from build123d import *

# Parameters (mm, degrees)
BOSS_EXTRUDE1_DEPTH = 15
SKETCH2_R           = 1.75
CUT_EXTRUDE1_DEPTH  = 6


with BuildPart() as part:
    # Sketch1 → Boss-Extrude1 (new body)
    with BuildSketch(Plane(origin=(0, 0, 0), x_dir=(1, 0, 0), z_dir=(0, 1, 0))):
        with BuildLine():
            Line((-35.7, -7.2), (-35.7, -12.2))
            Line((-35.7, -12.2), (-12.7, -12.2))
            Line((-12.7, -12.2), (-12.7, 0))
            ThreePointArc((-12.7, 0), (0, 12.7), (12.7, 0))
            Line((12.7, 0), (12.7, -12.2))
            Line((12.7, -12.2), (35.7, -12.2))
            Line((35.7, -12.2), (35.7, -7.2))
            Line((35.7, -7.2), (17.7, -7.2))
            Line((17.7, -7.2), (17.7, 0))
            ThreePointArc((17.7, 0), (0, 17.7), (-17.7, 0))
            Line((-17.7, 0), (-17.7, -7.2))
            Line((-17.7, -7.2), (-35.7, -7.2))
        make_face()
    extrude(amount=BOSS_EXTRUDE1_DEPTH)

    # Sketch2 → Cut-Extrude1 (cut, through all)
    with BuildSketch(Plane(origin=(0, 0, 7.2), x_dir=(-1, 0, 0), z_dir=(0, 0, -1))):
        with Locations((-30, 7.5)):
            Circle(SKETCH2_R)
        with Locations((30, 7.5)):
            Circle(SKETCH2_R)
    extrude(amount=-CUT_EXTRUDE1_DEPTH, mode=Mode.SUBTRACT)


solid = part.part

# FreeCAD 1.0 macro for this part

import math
import FreeCAD as App
import Part
import Sketcher
from FreeCAD import Vector
Q = App.Units.Quantity

doc = App.newDocument("Part")
body = doc.addObject("PartDesign::Body", "Body")

# Sketch on XZ plane
sketch1 = doc.addObject("Sketcher::SketchObject", "Sketch")
body.addObject(sketch1)
sketch1.AttachmentSupport = (doc.XZ_Plane, [""])
sketch1.MapMode = "FlatFace"
sketch1.addGeometry(Part.LineSegment(Vector(-35.7, 7.2, 0), Vector(-35.7, 12.2, 0)), False)
sketch1.addGeometry(Part.LineSegment(Vector(-35.7, 12.2, 0), Vector(-12.7, 12.2, 0)), False)
sketch1.addGeometry(Part.LineSegment(Vector(-12.7, 12.2, 0), Vector(-12.7, 0, 0)), False)
sketch1.addGeometry(Part.ArcOfCircle(Part.Circle(Vector(0, 0, 0), Vector(0, 0, 1), 12.7), math.radians(180), math.radians(360)), False)
sketch1.addGeometry(Part.LineSegment(Vector(12.7, 0, 0), Vector(12.7, 12.2, 0)), False)
sketch1.addGeometry(Part.LineSegment(Vector(12.7, 12.2, 0), Vector(35.7, 12.2, 0)), False)
sketch1.addGeometry(Part.LineSegment(Vector(35.7, 12.2, 0), Vector(35.7, 7.2, 0)), False)
sketch1.addGeometry(Part.LineSegment(Vector(35.7, 7.2, 0), Vector(17.7, 7.2, 0)), False)
sketch1.addGeometry(Part.LineSegment(Vector(17.7, 7.2, 0), Vector(17.7, 0, 0)), False)
sketch1.addGeometry(Part.ArcOfCircle(Part.Circle(Vector(0, 0, 0), Vector(0, 0, 1), 17.7), math.radians(180), math.radians(360)), False)
sketch1.addGeometry(Part.LineSegment(Vector(-17.7, 0, 0), Vector(-17.7, 7.2, 0)), False)
sketch1.addGeometry(Part.LineSegment(Vector(-17.7, 7.2, 0), Vector(-35.7, 7.2, 0)), False)
sketch1.addConstraint(Sketcher.Constraint("Coincident", 0, 2, 1, 1))
sketch1.addConstraint(Sketcher.Constraint("Coincident", 1, 2, 2, 1))
sketch1.addConstraint(Sketcher.Constraint("Tangent", 2, 2, 3, 1))
sketch1.addConstraint(Sketcher.Constraint("Tangent", 3, 2, 4, 1))
sketch1.addConstraint(Sketcher.Constraint("Coincident", 4, 2, 5, 1))
sketch1.addConstraint(Sketcher.Constraint("Coincident", 5, 2, 6, 1))
sketch1.addConstraint(Sketcher.Constraint("Coincident", 6, 2, 7, 1))
sketch1.addConstraint(Sketcher.Constraint("Coincident", 7, 2, 8, 1))
sketch1.addConstraint(Sketcher.Constraint("Tangent", 8, 2, 9, 2))
sketch1.addConstraint(Sketcher.Constraint("Tangent", 9, 1, 10, 1))
sketch1.addConstraint(Sketcher.Constraint("Coincident", 10, 2, 11, 1))
sketch1.addConstraint(Sketcher.Constraint("Coincident", 11, 2, 0, 1))
sketch1.addConstraint(Sketcher.Constraint("Vertical", 0))
sketch1.addConstraint(Sketcher.Constraint("Horizontal", 1))
sketch1.addConstraint(Sketcher.Constraint("Vertical", 2))
sketch1.addConstraint(Sketcher.Constraint("Vertical", 4))
sketch1.addConstraint(Sketcher.Constraint("Horizontal", 5))
sketch1.addConstraint(Sketcher.Constraint("Vertical", 6))
sketch1.addConstraint(Sketcher.Constraint("Horizontal", 7))
sketch1.addConstraint(Sketcher.Constraint("Vertical", 8))
sketch1.addConstraint(Sketcher.Constraint("Vertical", 10))
sketch1.addConstraint(Sketcher.Constraint("Horizontal", 11))
sketch1.addConstraint(Sketcher.Constraint("Coincident", 3, 3, -1, 1))
sketch1.addConstraint(Sketcher.Constraint("Coincident", 9, 3, -1, 1))
sketch1.addConstraint(Sketcher.Constraint("Symmetric", 0, 2, 5, 2, -2))
sketch1.addConstraint(Sketcher.Constraint("Horizontal", 7, 2, 10, 2))
sketch1.addConstraint(Sketcher.Constraint("Radius", 3, Q("12.7 mm")))
sketch1.addConstraint(Sketcher.Constraint("Radius", 9, Q("17.7 mm")))
sketch1.addConstraint(Sketcher.Constraint("DistanceX", 1, 1, 1, 2, Q("23 mm")))
sketch1.addConstraint(Sketcher.Constraint("DistanceY", 0, 1, 0, 2, Q("5 mm")))
sketch1.addConstraint(Sketcher.Constraint("DistanceY", 2, 2, 2, 1, Q("12.2 mm")))
pad1 = doc.addObject("PartDesign::Pad", "Pad")
body.addObject(pad1)
pad1.Profile = sketch1
pad1.Length = 15
pad1.Reversed = True

# Sketch on XY plane
sketch2 = doc.addObject("Sketcher::SketchObject", "Sketch001")
body.addObject(sketch2)
sketch2.AttachmentSupport = (doc.XY_Plane, [""])
sketch2.MapMode = "FlatFace"
sketch2.AttachmentOffset = App.Placement(Vector(0, 0, 7.2), App.Rotation())
sketch2.addGeometry(Part.Circle(Vector(30, 7.5, 0), Vector(0, 0, 1), 1.8), False)
sketch2.addGeometry(Part.Circle(Vector(-30, 7.5, 0), Vector(0, 0, 1), 1.8), False)
sketch2.addConstraint(Sketcher.Constraint("Equal", 0, 1))
sketch2.addConstraint(Sketcher.Constraint("Symmetric", 0, 3, 1, 3, -2))
sketch2.addConstraint(Sketcher.Constraint("Diameter", 0, Q("3.5 mm")))
sketch2.addConstraint(Sketcher.Constraint("DistanceX", -1, 1, 0, 3, Q("30 mm")))
sketch2.addConstraint(Sketcher.Constraint("DistanceY", -1, 1, 0, 3, Q("7.5 mm")))
pocket1 = doc.addObject("PartDesign::Pocket", "Pocket")
body.addObject(pocket1)
pocket1.Profile = sketch2
pocket1.Type = "ThroughAll"
pocket1.Reversed = True

doc.recompute()
